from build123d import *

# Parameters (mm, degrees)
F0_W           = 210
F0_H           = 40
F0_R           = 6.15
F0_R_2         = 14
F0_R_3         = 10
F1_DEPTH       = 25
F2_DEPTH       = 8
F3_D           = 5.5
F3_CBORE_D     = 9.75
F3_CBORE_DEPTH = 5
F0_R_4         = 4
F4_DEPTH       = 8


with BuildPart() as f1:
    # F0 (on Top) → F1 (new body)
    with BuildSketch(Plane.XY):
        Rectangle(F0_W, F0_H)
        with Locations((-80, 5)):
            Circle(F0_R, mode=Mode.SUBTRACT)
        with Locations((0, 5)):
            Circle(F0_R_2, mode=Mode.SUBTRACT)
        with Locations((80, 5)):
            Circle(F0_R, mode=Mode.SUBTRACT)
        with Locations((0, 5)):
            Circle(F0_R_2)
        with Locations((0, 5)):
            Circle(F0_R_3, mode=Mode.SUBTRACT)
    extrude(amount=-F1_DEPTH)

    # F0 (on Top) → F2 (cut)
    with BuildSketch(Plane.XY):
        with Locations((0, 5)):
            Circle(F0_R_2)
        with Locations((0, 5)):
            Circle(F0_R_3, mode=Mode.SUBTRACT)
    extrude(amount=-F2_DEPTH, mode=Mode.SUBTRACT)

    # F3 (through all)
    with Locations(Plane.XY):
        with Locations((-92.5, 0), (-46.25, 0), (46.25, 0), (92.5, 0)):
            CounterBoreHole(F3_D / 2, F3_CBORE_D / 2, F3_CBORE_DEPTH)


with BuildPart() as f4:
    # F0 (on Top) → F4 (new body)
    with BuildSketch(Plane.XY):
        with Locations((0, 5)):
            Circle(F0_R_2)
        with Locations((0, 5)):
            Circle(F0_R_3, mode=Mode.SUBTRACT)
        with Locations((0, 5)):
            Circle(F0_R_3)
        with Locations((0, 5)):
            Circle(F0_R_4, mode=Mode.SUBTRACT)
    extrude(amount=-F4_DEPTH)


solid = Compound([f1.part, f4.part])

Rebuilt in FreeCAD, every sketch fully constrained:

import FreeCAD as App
import Part
import Sketcher

doc = App.newDocument("Part")
body = doc.addObject("PartDesign::Body", "Body")

sketch1 = doc.addObject("Sketcher::SketchObject", "Sketch")
body.addObject(sketch1)
sketch1.AttachmentSupport = (doc.XY_Plane, [""])
sketch1.MapMode = "FlatFace"
sketch1.addGeometry(Part.LineSegment(App.Vector(-105, 20, 0), App.Vector(-105, -20, 0)), False)
sketch1.addGeometry(Part.LineSegment(App.Vector(-105, -20, 0), App.Vector(105, -20, 0)), False)
sketch1.addGeometry(Part.LineSegment(App.Vector(105, -20, 0), App.Vector(105, 20, 0)), False)
sketch1.addGeometry(Part.LineSegment(App.Vector(105, 20, 0), App.Vector(-105, 20, 0)), False)
sketch1.addGeometry(Part.Circle(App.Vector(-80, 5, 0), App.Vector(0, 0, 1), 6), False)
sketch1.addGeometry(Part.Circle(App.Vector(0, 5, 0), App.Vector(0, 0, 1), 10), False)
sketch1.addGeometry(Part.Circle(App.Vector(80, 5, 0), App.Vector(0, 0, 1), 6), False)
sketch1.addConstraint(Sketcher.Constraint("Coincident", 0, 2, 1, 1))
sketch1.addConstraint(Sketcher.Constraint("Coincident", 1, 2, 2, 1))
sketch1.addConstraint(Sketcher.Constraint("Coincident", 2, 2, 3, 1))
sketch1.addConstraint(Sketcher.Constraint("Coincident", 3, 2, 0, 1))
sketch1.addConstraint(Sketcher.Constraint("Vertical", 0))
sketch1.addConstraint(Sketcher.Constraint("Horizontal", 1))
sketch1.addConstraint(Sketcher.Constraint("Vertical", 2))
sketch1.addConstraint(Sketcher.Constraint("Horizontal", 3))
sketch1.addConstraint(Sketcher.Constraint("Equal", 4, 6))
sketch1.addConstraint(Sketcher.Constraint("Symmetric", 0, 2, 2, 2, -1, 1))
sketch1.addConstraint(Sketcher.Constraint("Symmetric", 4, 3, 6, 3, -2))
sketch1.addConstraint(Sketcher.Constraint("PointOnObject", 5, 3, -2))
sketch1.addConstraint(Sketcher.Constraint("Horizontal", 4, 3, 5, 3))
sketch1.addConstraint(Sketcher.Constraint("Diameter", 5, 20.0))
sketch1.addConstraint(Sketcher.Constraint("Diameter", 4, 12.3))
sketch1.addConstraint(Sketcher.Constraint("DistanceX", 1, 1, 1, 2, 210.0))
sketch1.addConstraint(Sketcher.Constraint("DistanceY", 0, 2, 0, 1, 40.0))
sketch1.addConstraint(Sketcher.Constraint("DistanceX", 4, 3, -1, 1, 80.0))
sketch1.addConstraint(Sketcher.Constraint("DistanceY", -1, 1, 4, 3, 5.0))
pad1 = doc.addObject("PartDesign::Pad", "Pad")
body.addObject(pad1)
pad1.Profile = sketch1
pad1.Length = 25
pad1.Reversed = True

sketch2 = doc.addObject("Sketcher::SketchObject", "Sketch001")
body.addObject(sketch2)
sketch2.AttachmentSupport = (doc.XY_Plane, [""])
sketch2.MapMode = "FlatFace"
sketch2.addGeometry(Part.Circle(App.Vector(0, 5, 0), App.Vector(0, 0, 1), 14), False)
sketch2.addGeometry(Part.Circle(App.Vector(0, 5, 0), App.Vector(0, 0, 1), 10), False)
sketch2.addConstraint(Sketcher.Constraint("Coincident", 1, 3, 0, 3))
sketch2.addConstraint(Sketcher.Constraint("PointOnObject", 0, 3, -2))
sketch2.addConstraint(Sketcher.Constraint("Diameter", 0, 28.0))
sketch2.addConstraint(Sketcher.Constraint("Diameter", 1, 20.0))
sketch2.addConstraint(Sketcher.Constraint("DistanceY", -1, 1, 0, 3, 5.0))
pocket1 = doc.addObject("PartDesign::Pocket", "Pocket")
body.addObject(pocket1)
pocket1.Profile = sketch2
pocket1.Length = 8

sketch3 = doc.addObject("Sketcher::SketchObject", "Sketch002")
body.addObject(sketch3)
sketch3.AttachmentSupport = (doc.XY_Plane, [""])
sketch3.MapMode = "FlatFace"
sketch3.addGeometry(Part.Circle(App.Vector(-92.5, 0, 0), App.Vector(0, 0, 1), 2.8), False)
sketch3.addGeometry(Part.Circle(App.Vector(-46.2, 0, 0), App.Vector(0, 0, 1), 2.8), False)
sketch3.addGeometry(Part.Circle(App.Vector(46.2, 0, 0), App.Vector(0, 0, 1), 2.8), False)
sketch3.addGeometry(Part.Circle(App.Vector(92.5, 0, 0), App.Vector(0, 0, 1), 2.8), False)
sketch3.addConstraint(Sketcher.Constraint("Equal", 0, 1))
sketch3.addConstraint(Sketcher.Constraint("Equal", 1, 2))
sketch3.addConstraint(Sketcher.Constraint("Equal", 2, 3))
sketch3.addConstraint(Sketcher.Constraint("Symmetric", 1, 3, 2, 3, -1, 1))
sketch3.addConstraint(Sketcher.Constraint("Symmetric", 0, 3, 3, 3, -1, 1))
sketch3.addConstraint(Sketcher.Constraint("PointOnObject", 0, 3, -1))
sketch3.addConstraint(Sketcher.Constraint("PointOnObject", 1, 3, -1))
sketch3.addConstraint(Sketcher.Constraint("Diameter", 0, 5.5))
sketch3.addConstraint(Sketcher.Constraint("DistanceX", 0, 3, 3, 3, 185.0))
sketch3.addConstraint(Sketcher.Constraint("DistanceX", 1, 3, 2, 3, 92.5))
doc.recompute()
hole = doc.addObject("PartDesign::Hole", "Hole")
body.addObject(hole)
hole.Profile = sketch3
hole.ThreadType = "None"
hole.Diameter = 5.5
hole.DepthType = "ThroughAll"
hole.HoleCutType = "Counterbore"
hole.HoleCutDiameter = 9.75
hole.HoleCutDepth = 5
body2 = doc.addObject("PartDesign::Body", "Body001")

sketch4 = doc.addObject("Sketcher::SketchObject", "Sketch003")
body2.addObject(sketch4)
sketch4.AttachmentSupport = (doc.getObject("XY_Plane001"), [""])
sketch4.MapMode = "FlatFace"
sketch4.addGeometry(Part.Circle(App.Vector(0, 5, 0), App.Vector(0, 0, 1), 14), False)
sketch4.addGeometry(Part.Circle(App.Vector(0, 5, 0), App.Vector(0, 0, 1), 4), False)
sketch4.addConstraint(Sketcher.Constraint("Coincident", 1, 3, 0, 3))
sketch4.addConstraint(Sketcher.Constraint("PointOnObject", 0, 3, -2))
sketch4.addConstraint(Sketcher.Constraint("Diameter", 0, 28.0))
sketch4.addConstraint(Sketcher.Constraint("Diameter", 1, 8.0))
sketch4.addConstraint(Sketcher.Constraint("DistanceY", -1, 1, 0, 3, 5.0))
pad2 = doc.addObject("PartDesign::Pad", "Pad001")
body2.addObject(pad2)
pad2.Profile = sketch4
pad2.Length = 8
pad2.Reversed = True

doc.recompute()
